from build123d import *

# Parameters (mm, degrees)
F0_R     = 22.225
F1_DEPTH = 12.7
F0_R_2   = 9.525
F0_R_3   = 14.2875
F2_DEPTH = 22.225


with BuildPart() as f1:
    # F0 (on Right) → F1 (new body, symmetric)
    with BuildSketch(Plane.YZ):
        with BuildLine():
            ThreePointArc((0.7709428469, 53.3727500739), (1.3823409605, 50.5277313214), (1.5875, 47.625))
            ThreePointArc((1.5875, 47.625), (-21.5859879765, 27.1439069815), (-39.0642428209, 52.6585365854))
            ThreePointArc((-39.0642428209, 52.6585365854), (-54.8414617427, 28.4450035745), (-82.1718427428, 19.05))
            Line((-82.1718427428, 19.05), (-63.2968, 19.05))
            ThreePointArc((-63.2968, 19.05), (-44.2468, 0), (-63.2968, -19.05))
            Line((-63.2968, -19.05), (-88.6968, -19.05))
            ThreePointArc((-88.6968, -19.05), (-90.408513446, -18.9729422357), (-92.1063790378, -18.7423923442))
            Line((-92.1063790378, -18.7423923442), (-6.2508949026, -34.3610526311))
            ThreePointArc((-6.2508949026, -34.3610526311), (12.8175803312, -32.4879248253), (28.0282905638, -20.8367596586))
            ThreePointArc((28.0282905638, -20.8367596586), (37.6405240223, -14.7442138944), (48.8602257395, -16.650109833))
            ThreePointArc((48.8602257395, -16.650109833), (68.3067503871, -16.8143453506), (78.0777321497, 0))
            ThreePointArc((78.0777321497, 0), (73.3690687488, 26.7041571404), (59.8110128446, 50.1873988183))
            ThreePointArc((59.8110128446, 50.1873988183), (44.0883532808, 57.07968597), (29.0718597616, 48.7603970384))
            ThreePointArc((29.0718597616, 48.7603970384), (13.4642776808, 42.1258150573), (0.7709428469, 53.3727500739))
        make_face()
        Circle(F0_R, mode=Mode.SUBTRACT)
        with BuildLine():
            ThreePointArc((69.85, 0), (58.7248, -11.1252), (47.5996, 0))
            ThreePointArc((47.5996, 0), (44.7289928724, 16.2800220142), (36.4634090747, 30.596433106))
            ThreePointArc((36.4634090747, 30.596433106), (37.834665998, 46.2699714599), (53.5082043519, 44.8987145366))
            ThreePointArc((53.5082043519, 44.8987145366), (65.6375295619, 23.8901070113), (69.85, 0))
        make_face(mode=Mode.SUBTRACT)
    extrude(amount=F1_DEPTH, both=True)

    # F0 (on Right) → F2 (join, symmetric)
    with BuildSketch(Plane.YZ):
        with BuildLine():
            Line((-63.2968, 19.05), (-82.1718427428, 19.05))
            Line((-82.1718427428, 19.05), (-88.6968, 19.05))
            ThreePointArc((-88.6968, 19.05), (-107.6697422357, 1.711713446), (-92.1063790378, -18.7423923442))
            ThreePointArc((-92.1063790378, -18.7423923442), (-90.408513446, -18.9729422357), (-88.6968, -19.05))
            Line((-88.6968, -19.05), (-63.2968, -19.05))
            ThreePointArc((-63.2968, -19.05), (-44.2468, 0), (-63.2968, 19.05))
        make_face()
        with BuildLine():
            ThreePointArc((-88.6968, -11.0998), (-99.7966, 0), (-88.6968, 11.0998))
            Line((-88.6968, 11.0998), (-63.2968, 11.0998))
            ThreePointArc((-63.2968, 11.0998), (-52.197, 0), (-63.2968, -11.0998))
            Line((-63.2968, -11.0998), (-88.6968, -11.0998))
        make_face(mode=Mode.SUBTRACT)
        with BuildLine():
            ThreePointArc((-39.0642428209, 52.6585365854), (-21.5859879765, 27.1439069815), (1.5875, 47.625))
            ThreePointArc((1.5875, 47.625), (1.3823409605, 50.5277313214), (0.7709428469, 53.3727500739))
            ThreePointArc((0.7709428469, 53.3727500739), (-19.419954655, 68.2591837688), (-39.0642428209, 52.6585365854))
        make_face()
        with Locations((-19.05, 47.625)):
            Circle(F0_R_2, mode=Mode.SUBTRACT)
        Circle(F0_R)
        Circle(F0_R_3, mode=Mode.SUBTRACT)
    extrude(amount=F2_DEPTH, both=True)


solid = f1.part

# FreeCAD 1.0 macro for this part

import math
import FreeCAD as App
import Part
import Sketcher
Q = App.Units.Quantity

doc = App.newDocument("Part")
body = doc.addObject("PartDesign::Body", "Body")

# Sketch on YZ plane
sketch1 = body.newObject("Sketcher::SketchObject", "Sketch")
sketch1.AttachmentSupport = (doc.getObject("YZ_Plane"), [""])
sketch1.MapMode = "FlatFace"
sketch1.addGeometry(Part.ArcOfCircle(Part.Circle(App.Vector(-19.1, 47.6, 0), App.Vector(0, 0, 1), 20.6), math.radians(0), math.radians(16.17)), False)
sketch1.addGeometry(Part.ArcOfCircle(Part.Circle(App.Vector(-19.1, 47.6, 0), App.Vector(0, 0, 1), 20.6), math.radians(166), math.radians(360)), False)
sketch1.addGeometry(Part.ArcOfCircle(Part.Circle(App.Vector(-82.2, 63.5, 0), App.Vector(0, 0, 1), 44.5), math.radians(-90), math.radians(-14)), False)
sketch1.addGeometry(Part.LineSegment(App.Vector(-82.2, 19.1, 0), App.Vector(-63.3, 19.1, 0)), False)
sketch1.addGeometry(Part.ArcOfCircle(Part.Circle(App.Vector(-63.3, 0, 0), App.Vector(0, 0, 1), 19.1), math.radians(-90), math.radians(90)), False)
sketch1.addGeometry(Part.LineSegment(App.Vector(-63.3, -19.1, 0), App.Vector(-88.7, -19.1, 0)), False)
sketch1.addGeometry(Part.ArcOfCircle(Part.Circle(App.Vector(-88.7, 0, 0), App.Vector(0, 0, 1), 19), math.radians(-100.31), math.radians(-90)), False)
sketch1.addGeometry(Part.LineSegment(App.Vector(-92.1, -18.7, 0), App.Vector(-6.3, -34.4, 0)), False)
sketch1.addGeometry(Part.ArcOfCircle(Part.Circle(App.Vector(0, 0, 0), App.Vector(0, 0, 1), 34.9), math.radians(-100), math.radians(-37)), False)
sketch1.addGeometry(Part.ArcOfCircle(Part.Circle(App.Vector(40.8, -30.3, 0), App.Vector(0, 0, 1), 15.9), math.radians(59), math.radians(143)), False)
sketch1.addGeometry(Part.ArcOfCircle(Part.Circle(App.Vector(58.7, 0, 0), App.Vector(0, 0, 1), 19.4), math.radians(-121), math.radians(0)), False)
sketch1.addGeometry(Part.ArcOfCircle(Part.Circle(App.Vector(0, 0, 0), App.Vector(0, 0, 1), 78.1), math.radians(0), math.radians(40)), False)
sketch1.addGeometry(Part.ArcOfCircle(Part.Circle(App.Vector(45, 37.7, 0), App.Vector(0, 0, 1), 19.4), math.radians(40), math.radians(145)), False)
sketch1.addGeometry(Part.ArcOfCircle(Part.Circle(App.Vector(16, 57.8, 0), App.Vector(0, 0, 1), 15.9), math.radians(-164), math.radians(-35)), False)
sketch1.addGeometry(Part.Circle(App.Vector(0, 0, 0), App.Vector(0, 0, 1), 22.2), False)
sketch1.addGeometry(Part.ArcOfCircle(Part.Circle(App.Vector(0, 0, 0), App.Vector(0, 0, 1), 69.8), math.radians(0), math.radians(40)), False)
sketch1.addGeometry(Part.ArcOfCircle(Part.Circle(App.Vector(58.7, 0, 0), App.Vector(0, 0, 1), 11.1), math.radians(180), math.radians(360)), False)
sketch1.addGeometry(Part.ArcOfCircle(Part.Circle(App.Vector(0, 0, 0), App.Vector(0, 0, 1), 47.6), math.radians(0), math.radians(40)), False)
sketch1.addGeometry(Part.ArcOfCircle(Part.Circle(App.Vector(45, 37.7, 0), App.Vector(0, 0, 1), 11.1), math.radians(40), math.radians(220)), False)
sketch1.addConstraint(Sketcher.Constraint("Tangent", 0, 1, 1, 2))
sketch1.addConstraint(Sketcher.Constraint("Tangent", 1, 1, 2, 2))
sketch1.addConstraint(Sketcher.Constraint("Tangent", 2, 1, 3, 1))
sketch1.addConstraint(Sketcher.Constraint("Tangent", 3, 2, 4, 2))
sketch1.addConstraint(Sketcher.Constraint("Tangent", 4, 1, 5, 1))
sketch1.addConstraint(Sketcher.Constraint("Tangent", 5, 2, 6, 2))
sketch1.addConstraint(Sketcher.Constraint("Tangent", 6, 1, 7, 1))
sketch1.addConstraint(Sketcher.Constraint("Tangent", 7, 2, 8, 1))
sketch1.addConstraint(Sketcher.Constraint("Tangent", 8, 2, 9, 2))
sketch1.addConstraint(Sketcher.Constraint("Tangent", 9, 1, 10, 1))
sketch1.addConstraint(Sketcher.Constraint("Tangent", 10, 2, 11, 1))
sketch1.addConstraint(Sketcher.Constraint("Tangent", 11, 2, 12, 1))
sketch1.addConstraint(Sketcher.Constraint("Tangent", 12, 2, 13, 2))
sketch1.addConstraint(Sketcher.Constraint("Tangent", 13, 1, 0, 2))
sketch1.addConstraint(Sketcher.Constraint("Tangent", 15, 1, 16, 2))
sketch1.addConstraint(Sketcher.Constraint("Tangent", 16, 1, 17, 1))
sketch1.addConstraint(Sketcher.Constraint("Tangent", 17, 2, 18, 2))
sketch1.addConstraint(Sketcher.Constraint("Tangent", 18, 1, 15, 2))
sketch1.addConstraint(Sketcher.Constraint("Horizontal", 3))
sketch1.addConstraint(Sketcher.Constraint("Horizontal", 5))
sketch1.addConstraint(Sketcher.Constraint("Coincident", 8, 3, -1, 1))
sketch1.addConstraint(Sketcher.Constraint("Coincident", 11, 3, -1, 1))
sketch1.addConstraint(Sketcher.Constraint("Coincident", 14, 3, -1, 1))
sketch1.addConstraint(Sketcher.Constraint("Coincident", 15, 3, -1, 1))
sketch1.addConstraint(Sketcher.Constraint("Coincident", 17, 3, -1, 1))
sketch1.addConstraint(Sketcher.Constraint("Coincident", 16, 3, 10, 3))
sketch1.addConstraint(Sketcher.Constraint("Coincident", 18, 3, 12, 3))
sketch1.addConstraint(Sketcher.Constraint("Equal", 0, 1))
sketch1.addConstraint(Sketcher.Constraint("Equal", 4, 6))
sketch1.addConstraint(Sketcher.Constraint("Equal", 9, 13))
sketch1.addConstraint(Sketcher.Constraint("PointOnObject", 4, 3, -1))
sketch1.addConstraint(Sketcher.Constraint("PointOnObject", 10, 3, -1))
sketch1.addConstraint(Sketcher.Constraint("Horizontal", 1, 3, 0, 1))
sketch1.addConstraint(Sketcher.Constraint("Diameter", 14, Q("1.75 in")))
sketch1.addConstraint(Sketcher.Constraint("DistanceX", 5, 2, 5, 1, Q("1 in")))
sketch1.addConstraint(Sketcher.Constraint("Radius", 2, Q("1.75 in")))
sketch1.addConstraint(Sketcher.Constraint("Radius", 4, Q("0.75 in")))
sketch1.addConstraint(Sketcher.Constraint("Radius", 15, Q("2.75 in")))
sketch1.addConstraint(Sketcher.Constraint("Radius", 0, Q("0.8125 in")))
sketch1.addConstraint(Sketcher.Constraint("Radius", 8, Q("1.375 in")))
sketch1.addConstraint(Sketcher.Constraint("Radius", 9, Q("0.625 in")))
sketch1.addConstraint(Sketcher.Constraint("Radius", 16, Q("0.438 in")))
sketch1.addConstraint(Sketcher.Constraint("DistanceX", 0, 3, -1, 1, Q("0.75 in")))
sketch1.addConstraint(Sketcher.Constraint("DistanceY", -1, 1, 0, 3, Q("1.875 in")))
sketch1.addConstraint(Sketcher.Constraint("DistanceX", 4, 3, -1, 1, Q("2.492 in")))
sketch1.addConstraint(Sketcher.Constraint("Radius", 10, 19.352932))
sketch1.addConstraint(Sketcher.Constraint("DistanceY", -1, 1, 11, 2, 50.187399))
pad1 = body.newObject("PartDesign::Pad", "Pad")
pad1.Profile = sketch1
pad1.Length = Q("1 in")
pad1.Midplane = True

# Sketch on YZ plane
sketch2 = body.newObject("Sketcher::SketchObject", "Sketch001")
sketch2.AttachmentSupport = (doc.getObject("YZ_Plane"), [""])
sketch2.MapMode = "FlatFace"
sketch2.addGeometry(Part.LineSegment(App.Vector(-63.3, 19.1, 0), App.Vector(-88.7, 19.1, 0)), False)
sketch2.addGeometry(Part.ArcOfCircle(Part.Circle(App.Vector(-88.7, 0, 0), App.Vector(0, 0, 1), 19.1), math.radians(90), math.radians(260)), False)
sketch2.addGeometry(Part.ArcOfCircle(Part.Circle(App.Vector(-88.7, 0, 0), App.Vector(0, 0, 1), 19), math.radians(-100.31), math.radians(-90)), False)
sketch2.addGeometry(Part.LineSegment(App.Vector(-88.7, -19.1, 0), App.Vector(-63.3, -19.1, 0)), False)
sketch2.addGeometry(Part.ArcOfCircle(Part.Circle(App.Vector(-63.3, 0, 0), App.Vector(0, 0, 1), 19.1), math.radians(-90), math.radians(90)), False)
sketch2.addGeometry(Part.LineSegment(App.Vector(-63.3, -11.1, 0), App.Vector(-88.7, -11.1, 0)), False)
sketch2.addGeometry(Part.ArcOfCircle(Part.Circle(App.Vector(-88.7, 0, 0), App.Vector(0, 0, 1), 11.1), math.radians(90), math.radians(270)), False)
sketch2.addGeometry(Part.LineSegment(App.Vector(-88.7, 11.1, 0), App.Vector(-63.3, 11.1, 0)), False)
sketch2.addGeometry(Part.ArcOfCircle(Part.Circle(App.Vector(-63.3, 0, 0), App.Vector(0, 0, 1), 11.1), math.radians(-90), math.radians(90)), False)
sketch2.addGeometry(Part.ArcOfCircle(Part.Circle(App.Vector(-19.1, 47.6, 0), App.Vector(0, 0, 1), 20.6), math.radians(0), math.radians(16.17)), False)
sketch2.addGeometry(Part.ArcOfCircle(Part.Circle(App.Vector(-19.1, 47.6, 0), App.Vector(0, 0, 1), 20.6), math.radians(16), math.radians(360)), False)
sketch2.addGeometry(Part.Circle(App.Vector(-19.1, 47.6, 0), App.Vector(0, 0, 1), 9.5), False)
sketch2.addGeometry(Part.Circle(App.Vector(0, 0, 0), App.Vector(0, 0, 1), 22.2), False)
sketch2.addGeometry(Part.Circle(App.Vector(0, 0, 0), App.Vector(0, 0, 1), 14.3), False)
sketch2.addConstraint(Sketcher.Constraint("Tangent", 0, 2, 1, 1))
sketch2.addConstraint(Sketcher.Constraint("Tangent", 1, 2, 2, 1))
sketch2.addConstraint(Sketcher.Constraint("Tangent", 2, 2, 3, 1))
sketch2.addConstraint(Sketcher.Constraint("Tangent", 3, 2, 4, 1))
sketch2.addConstraint(Sketcher.Constraint("Tangent", 4, 2, 0, 1))
sketch2.addConstraint(Sketcher.Constraint("Tangent", 5, 2, 6, 2))
sketch2.addConstraint(Sketcher.Constraint("Tangent", 6, 1, 7, 1))
sketch2.addConstraint(Sketcher.Constraint("Tangent", 7, 2, 8, 2))
sketch2.addConstraint(Sketcher.Constraint("Tangent", 8, 1, 5, 1))
sketch2.addConstraint(Sketcher.Constraint("Tangent", 9, 1, 10, 2))
sketch2.addConstraint(Sketcher.Constraint("Coincident", 10, 1, 9, 2))
sketch2.addConstraint(Sketcher.Constraint("Horizontal", 0))
sketch2.addConstraint(Sketcher.Constraint("Horizontal", 3))
sketch2.addConstraint(Sketcher.Constraint("Horizontal", 5))
sketch2.addConstraint(Sketcher.Constraint("Horizontal", 7))
sketch2.addConstraint(Sketcher.Constraint("Coincident", 12, 3, -1, 1))
sketch2.addConstraint(Sketcher.Constraint("Coincident", 13, 3, -1, 1))
sketch2.addConstraint(Sketcher.Constraint("Coincident", 6, 3, 1, 3))
sketch2.addConstraint(Sketcher.Constraint("Coincident", 8, 3, 4, 3))
sketch2.addConstraint(Sketcher.Constraint("Coincident", 11, 3, 9, 3))
sketch2.addConstraint(Sketcher.Constraint("PointOnObject", 1, 3, -1))
sketch2.addConstraint(Sketcher.Constraint("Horizontal", 11, 3, 9, 1))
sketch2.addConstraint(Sketcher.Constraint("Diameter", 11, Q("0.75 in")))
sketch2.addConstraint(Sketcher.Constraint("Diameter", 12, Q("1.75 in")))
sketch2.addConstraint(Sketcher.Constraint("DistanceX", 0, 2, 0, 1, Q("1 in")))
sketch2.addConstraint(Sketcher.Constraint("Radius", 1, Q("0.75 in")))
sketch2.addConstraint(Sketcher.Constraint("Diameter", 13, Q("1.125 in")))
sketch2.addConstraint(Sketcher.Constraint("Radius", 6, Q("0.437 in")))
sketch2.addConstraint(Sketcher.Constraint("Radius", 9, Q("0.8125 in")))
sketch2.addConstraint(Sketcher.Constraint("DistanceX", 9, 3, -1, 1, Q("0.75 in")))
sketch2.addConstraint(Sketcher.Constraint("DistanceX", 1, 3, -1, 1, Q("3.492 in")))
sketch2.addConstraint(Sketcher.Constraint("DistanceY", -1, 1, 9, 3, Q("1.875 in")))
sketch2.addConstraint(Sketcher.Constraint("DistanceX", 1, 2, -1, 1, 92.106379))
sketch2.addConstraint(Sketcher.Constraint("DistanceY", -1, 1, 10, 1, 53.37275))
pad2 = body.newObject("PartDesign::Pad", "Pad001")
pad2.Profile = sketch2
pad2.Length = Q("1.75 in")
pad2.Midplane = True

doc.recompute()
